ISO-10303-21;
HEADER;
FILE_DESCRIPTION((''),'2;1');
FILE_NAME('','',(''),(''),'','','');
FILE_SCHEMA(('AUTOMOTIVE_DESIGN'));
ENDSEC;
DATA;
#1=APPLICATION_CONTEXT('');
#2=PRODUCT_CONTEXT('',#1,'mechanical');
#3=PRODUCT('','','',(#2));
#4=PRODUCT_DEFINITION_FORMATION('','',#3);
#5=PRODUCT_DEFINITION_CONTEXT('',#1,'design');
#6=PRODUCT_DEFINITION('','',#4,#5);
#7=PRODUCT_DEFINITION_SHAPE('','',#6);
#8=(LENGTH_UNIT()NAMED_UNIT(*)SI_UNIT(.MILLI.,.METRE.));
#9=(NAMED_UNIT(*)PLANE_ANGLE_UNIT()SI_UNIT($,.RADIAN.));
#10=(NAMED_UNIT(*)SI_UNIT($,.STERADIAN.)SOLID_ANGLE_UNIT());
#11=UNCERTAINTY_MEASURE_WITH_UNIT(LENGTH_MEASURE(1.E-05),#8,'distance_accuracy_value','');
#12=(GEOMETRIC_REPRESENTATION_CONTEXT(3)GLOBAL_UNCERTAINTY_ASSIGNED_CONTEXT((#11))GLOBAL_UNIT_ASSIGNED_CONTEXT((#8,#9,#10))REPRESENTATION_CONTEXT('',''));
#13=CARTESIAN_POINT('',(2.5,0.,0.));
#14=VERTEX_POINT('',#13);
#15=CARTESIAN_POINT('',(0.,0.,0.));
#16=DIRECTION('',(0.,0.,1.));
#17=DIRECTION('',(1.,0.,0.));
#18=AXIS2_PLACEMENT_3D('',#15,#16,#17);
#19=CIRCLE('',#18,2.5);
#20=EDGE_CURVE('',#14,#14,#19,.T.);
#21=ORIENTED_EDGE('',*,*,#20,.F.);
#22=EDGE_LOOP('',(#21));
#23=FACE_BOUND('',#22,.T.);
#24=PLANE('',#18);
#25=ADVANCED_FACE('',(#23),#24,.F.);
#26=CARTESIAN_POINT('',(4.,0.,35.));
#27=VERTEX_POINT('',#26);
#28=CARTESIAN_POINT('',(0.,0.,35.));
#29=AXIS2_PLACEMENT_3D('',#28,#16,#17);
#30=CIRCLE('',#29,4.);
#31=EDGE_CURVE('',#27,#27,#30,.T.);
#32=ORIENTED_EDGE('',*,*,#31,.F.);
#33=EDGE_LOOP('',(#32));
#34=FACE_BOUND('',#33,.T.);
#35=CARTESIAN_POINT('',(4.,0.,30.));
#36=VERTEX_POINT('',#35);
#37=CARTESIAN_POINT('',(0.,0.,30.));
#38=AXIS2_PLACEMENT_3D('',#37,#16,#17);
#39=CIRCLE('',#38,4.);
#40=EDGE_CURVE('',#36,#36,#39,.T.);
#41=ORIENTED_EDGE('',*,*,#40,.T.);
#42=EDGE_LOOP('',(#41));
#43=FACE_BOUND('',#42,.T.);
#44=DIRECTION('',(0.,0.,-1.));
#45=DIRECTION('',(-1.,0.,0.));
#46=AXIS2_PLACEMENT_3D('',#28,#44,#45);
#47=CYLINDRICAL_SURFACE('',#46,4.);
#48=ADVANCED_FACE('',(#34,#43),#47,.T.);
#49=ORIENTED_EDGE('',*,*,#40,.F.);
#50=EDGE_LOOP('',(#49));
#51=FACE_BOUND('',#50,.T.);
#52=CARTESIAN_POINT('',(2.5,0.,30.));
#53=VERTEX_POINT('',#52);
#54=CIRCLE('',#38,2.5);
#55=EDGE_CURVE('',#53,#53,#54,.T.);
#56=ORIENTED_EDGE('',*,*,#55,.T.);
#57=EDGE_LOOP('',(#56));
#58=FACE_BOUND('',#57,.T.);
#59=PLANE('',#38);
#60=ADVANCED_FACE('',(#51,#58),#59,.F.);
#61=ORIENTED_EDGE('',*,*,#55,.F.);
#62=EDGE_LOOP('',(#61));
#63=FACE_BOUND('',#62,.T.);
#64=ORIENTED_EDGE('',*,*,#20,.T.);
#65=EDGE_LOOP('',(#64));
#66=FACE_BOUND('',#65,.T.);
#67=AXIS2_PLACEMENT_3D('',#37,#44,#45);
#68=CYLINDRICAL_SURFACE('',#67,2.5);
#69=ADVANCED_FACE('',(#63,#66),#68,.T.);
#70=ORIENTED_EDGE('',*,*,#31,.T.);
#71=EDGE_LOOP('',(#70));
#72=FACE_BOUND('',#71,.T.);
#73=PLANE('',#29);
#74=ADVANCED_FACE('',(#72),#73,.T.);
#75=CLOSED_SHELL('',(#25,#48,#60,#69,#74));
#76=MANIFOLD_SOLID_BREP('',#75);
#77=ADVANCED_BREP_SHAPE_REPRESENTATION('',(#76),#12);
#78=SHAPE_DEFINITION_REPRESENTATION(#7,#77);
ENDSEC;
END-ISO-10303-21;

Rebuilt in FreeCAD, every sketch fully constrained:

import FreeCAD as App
import Part
import Sketcher
from FreeCAD import Vector
Q = App.Units.Quantity

doc = App.newDocument("Part")
params = doc.addObject("Spreadsheet::Sheet", "Params")
for row, (alias, value) in enumerate([
    ("sketch1_diameter", "5 mm"),
    ("pad1_length", "30 mm"),
    ("sketch2_diameter", "8 mm"),
    ("pad2_length", "5 mm"),
], start=1):
    params.set(f"A{row}", alias)
    params.set(f"B{row}", "=" + value)
    params.setAlias(f"B{row}", alias)

body = doc.addObject("PartDesign::Body", "Body")

sketch1 = body.newObject("Sketcher::SketchObject", "Sketch")
sketch1.AttachmentSupport = (doc.getObject("XY_Plane"), [""])
sketch1.MapMode = "FlatFace"
sketch1.addGeometry(Part.Circle(Vector(0, 0, 0), Vector(0, 0, 1), 2.5), False)
sketch1.addConstraint(Sketcher.Constraint("Coincident", 0, 3, -1, 1))
sketch1.addConstraint(Sketcher.Constraint("Diameter", 0, Q("5 mm")))
sketch1.setExpression("Constraints[1]", "Params.sketch1_diameter")
pad1 = body.newObject("PartDesign::Pad", "Pad")
pad1.Profile = sketch1
pad1.setExpression("Length", "Params.pad1_length")

sketch2 = body.newObject("Sketcher::SketchObject", "Sketch001")
sketch2.AttachmentSupport = (doc.getObject("XY_Plane"), [""])
sketch2.MapMode = "FlatFace"
sketch2.AttachmentOffset = App.Placement(Vector(0, 0, 30), App.Rotation())
sketch2.addGeometry(Part.Circle(Vector(0, 0, 0), Vector(0, 0, 1), 4), False)
sketch2.addConstraint(Sketcher.Constraint("Coincident", 0, 3, -1, 1))
sketch2.addConstraint(Sketcher.Constraint("Diameter", 0, Q("8 mm")))
sketch2.setExpression("Constraints[1]", "Params.sketch2_diameter")
pad2 = body.newObject("PartDesign::Pad", "Pad001")
pad2.Profile = sketch2
pad2.setExpression("Length", "Params.pad2_length")

doc.recompute()
